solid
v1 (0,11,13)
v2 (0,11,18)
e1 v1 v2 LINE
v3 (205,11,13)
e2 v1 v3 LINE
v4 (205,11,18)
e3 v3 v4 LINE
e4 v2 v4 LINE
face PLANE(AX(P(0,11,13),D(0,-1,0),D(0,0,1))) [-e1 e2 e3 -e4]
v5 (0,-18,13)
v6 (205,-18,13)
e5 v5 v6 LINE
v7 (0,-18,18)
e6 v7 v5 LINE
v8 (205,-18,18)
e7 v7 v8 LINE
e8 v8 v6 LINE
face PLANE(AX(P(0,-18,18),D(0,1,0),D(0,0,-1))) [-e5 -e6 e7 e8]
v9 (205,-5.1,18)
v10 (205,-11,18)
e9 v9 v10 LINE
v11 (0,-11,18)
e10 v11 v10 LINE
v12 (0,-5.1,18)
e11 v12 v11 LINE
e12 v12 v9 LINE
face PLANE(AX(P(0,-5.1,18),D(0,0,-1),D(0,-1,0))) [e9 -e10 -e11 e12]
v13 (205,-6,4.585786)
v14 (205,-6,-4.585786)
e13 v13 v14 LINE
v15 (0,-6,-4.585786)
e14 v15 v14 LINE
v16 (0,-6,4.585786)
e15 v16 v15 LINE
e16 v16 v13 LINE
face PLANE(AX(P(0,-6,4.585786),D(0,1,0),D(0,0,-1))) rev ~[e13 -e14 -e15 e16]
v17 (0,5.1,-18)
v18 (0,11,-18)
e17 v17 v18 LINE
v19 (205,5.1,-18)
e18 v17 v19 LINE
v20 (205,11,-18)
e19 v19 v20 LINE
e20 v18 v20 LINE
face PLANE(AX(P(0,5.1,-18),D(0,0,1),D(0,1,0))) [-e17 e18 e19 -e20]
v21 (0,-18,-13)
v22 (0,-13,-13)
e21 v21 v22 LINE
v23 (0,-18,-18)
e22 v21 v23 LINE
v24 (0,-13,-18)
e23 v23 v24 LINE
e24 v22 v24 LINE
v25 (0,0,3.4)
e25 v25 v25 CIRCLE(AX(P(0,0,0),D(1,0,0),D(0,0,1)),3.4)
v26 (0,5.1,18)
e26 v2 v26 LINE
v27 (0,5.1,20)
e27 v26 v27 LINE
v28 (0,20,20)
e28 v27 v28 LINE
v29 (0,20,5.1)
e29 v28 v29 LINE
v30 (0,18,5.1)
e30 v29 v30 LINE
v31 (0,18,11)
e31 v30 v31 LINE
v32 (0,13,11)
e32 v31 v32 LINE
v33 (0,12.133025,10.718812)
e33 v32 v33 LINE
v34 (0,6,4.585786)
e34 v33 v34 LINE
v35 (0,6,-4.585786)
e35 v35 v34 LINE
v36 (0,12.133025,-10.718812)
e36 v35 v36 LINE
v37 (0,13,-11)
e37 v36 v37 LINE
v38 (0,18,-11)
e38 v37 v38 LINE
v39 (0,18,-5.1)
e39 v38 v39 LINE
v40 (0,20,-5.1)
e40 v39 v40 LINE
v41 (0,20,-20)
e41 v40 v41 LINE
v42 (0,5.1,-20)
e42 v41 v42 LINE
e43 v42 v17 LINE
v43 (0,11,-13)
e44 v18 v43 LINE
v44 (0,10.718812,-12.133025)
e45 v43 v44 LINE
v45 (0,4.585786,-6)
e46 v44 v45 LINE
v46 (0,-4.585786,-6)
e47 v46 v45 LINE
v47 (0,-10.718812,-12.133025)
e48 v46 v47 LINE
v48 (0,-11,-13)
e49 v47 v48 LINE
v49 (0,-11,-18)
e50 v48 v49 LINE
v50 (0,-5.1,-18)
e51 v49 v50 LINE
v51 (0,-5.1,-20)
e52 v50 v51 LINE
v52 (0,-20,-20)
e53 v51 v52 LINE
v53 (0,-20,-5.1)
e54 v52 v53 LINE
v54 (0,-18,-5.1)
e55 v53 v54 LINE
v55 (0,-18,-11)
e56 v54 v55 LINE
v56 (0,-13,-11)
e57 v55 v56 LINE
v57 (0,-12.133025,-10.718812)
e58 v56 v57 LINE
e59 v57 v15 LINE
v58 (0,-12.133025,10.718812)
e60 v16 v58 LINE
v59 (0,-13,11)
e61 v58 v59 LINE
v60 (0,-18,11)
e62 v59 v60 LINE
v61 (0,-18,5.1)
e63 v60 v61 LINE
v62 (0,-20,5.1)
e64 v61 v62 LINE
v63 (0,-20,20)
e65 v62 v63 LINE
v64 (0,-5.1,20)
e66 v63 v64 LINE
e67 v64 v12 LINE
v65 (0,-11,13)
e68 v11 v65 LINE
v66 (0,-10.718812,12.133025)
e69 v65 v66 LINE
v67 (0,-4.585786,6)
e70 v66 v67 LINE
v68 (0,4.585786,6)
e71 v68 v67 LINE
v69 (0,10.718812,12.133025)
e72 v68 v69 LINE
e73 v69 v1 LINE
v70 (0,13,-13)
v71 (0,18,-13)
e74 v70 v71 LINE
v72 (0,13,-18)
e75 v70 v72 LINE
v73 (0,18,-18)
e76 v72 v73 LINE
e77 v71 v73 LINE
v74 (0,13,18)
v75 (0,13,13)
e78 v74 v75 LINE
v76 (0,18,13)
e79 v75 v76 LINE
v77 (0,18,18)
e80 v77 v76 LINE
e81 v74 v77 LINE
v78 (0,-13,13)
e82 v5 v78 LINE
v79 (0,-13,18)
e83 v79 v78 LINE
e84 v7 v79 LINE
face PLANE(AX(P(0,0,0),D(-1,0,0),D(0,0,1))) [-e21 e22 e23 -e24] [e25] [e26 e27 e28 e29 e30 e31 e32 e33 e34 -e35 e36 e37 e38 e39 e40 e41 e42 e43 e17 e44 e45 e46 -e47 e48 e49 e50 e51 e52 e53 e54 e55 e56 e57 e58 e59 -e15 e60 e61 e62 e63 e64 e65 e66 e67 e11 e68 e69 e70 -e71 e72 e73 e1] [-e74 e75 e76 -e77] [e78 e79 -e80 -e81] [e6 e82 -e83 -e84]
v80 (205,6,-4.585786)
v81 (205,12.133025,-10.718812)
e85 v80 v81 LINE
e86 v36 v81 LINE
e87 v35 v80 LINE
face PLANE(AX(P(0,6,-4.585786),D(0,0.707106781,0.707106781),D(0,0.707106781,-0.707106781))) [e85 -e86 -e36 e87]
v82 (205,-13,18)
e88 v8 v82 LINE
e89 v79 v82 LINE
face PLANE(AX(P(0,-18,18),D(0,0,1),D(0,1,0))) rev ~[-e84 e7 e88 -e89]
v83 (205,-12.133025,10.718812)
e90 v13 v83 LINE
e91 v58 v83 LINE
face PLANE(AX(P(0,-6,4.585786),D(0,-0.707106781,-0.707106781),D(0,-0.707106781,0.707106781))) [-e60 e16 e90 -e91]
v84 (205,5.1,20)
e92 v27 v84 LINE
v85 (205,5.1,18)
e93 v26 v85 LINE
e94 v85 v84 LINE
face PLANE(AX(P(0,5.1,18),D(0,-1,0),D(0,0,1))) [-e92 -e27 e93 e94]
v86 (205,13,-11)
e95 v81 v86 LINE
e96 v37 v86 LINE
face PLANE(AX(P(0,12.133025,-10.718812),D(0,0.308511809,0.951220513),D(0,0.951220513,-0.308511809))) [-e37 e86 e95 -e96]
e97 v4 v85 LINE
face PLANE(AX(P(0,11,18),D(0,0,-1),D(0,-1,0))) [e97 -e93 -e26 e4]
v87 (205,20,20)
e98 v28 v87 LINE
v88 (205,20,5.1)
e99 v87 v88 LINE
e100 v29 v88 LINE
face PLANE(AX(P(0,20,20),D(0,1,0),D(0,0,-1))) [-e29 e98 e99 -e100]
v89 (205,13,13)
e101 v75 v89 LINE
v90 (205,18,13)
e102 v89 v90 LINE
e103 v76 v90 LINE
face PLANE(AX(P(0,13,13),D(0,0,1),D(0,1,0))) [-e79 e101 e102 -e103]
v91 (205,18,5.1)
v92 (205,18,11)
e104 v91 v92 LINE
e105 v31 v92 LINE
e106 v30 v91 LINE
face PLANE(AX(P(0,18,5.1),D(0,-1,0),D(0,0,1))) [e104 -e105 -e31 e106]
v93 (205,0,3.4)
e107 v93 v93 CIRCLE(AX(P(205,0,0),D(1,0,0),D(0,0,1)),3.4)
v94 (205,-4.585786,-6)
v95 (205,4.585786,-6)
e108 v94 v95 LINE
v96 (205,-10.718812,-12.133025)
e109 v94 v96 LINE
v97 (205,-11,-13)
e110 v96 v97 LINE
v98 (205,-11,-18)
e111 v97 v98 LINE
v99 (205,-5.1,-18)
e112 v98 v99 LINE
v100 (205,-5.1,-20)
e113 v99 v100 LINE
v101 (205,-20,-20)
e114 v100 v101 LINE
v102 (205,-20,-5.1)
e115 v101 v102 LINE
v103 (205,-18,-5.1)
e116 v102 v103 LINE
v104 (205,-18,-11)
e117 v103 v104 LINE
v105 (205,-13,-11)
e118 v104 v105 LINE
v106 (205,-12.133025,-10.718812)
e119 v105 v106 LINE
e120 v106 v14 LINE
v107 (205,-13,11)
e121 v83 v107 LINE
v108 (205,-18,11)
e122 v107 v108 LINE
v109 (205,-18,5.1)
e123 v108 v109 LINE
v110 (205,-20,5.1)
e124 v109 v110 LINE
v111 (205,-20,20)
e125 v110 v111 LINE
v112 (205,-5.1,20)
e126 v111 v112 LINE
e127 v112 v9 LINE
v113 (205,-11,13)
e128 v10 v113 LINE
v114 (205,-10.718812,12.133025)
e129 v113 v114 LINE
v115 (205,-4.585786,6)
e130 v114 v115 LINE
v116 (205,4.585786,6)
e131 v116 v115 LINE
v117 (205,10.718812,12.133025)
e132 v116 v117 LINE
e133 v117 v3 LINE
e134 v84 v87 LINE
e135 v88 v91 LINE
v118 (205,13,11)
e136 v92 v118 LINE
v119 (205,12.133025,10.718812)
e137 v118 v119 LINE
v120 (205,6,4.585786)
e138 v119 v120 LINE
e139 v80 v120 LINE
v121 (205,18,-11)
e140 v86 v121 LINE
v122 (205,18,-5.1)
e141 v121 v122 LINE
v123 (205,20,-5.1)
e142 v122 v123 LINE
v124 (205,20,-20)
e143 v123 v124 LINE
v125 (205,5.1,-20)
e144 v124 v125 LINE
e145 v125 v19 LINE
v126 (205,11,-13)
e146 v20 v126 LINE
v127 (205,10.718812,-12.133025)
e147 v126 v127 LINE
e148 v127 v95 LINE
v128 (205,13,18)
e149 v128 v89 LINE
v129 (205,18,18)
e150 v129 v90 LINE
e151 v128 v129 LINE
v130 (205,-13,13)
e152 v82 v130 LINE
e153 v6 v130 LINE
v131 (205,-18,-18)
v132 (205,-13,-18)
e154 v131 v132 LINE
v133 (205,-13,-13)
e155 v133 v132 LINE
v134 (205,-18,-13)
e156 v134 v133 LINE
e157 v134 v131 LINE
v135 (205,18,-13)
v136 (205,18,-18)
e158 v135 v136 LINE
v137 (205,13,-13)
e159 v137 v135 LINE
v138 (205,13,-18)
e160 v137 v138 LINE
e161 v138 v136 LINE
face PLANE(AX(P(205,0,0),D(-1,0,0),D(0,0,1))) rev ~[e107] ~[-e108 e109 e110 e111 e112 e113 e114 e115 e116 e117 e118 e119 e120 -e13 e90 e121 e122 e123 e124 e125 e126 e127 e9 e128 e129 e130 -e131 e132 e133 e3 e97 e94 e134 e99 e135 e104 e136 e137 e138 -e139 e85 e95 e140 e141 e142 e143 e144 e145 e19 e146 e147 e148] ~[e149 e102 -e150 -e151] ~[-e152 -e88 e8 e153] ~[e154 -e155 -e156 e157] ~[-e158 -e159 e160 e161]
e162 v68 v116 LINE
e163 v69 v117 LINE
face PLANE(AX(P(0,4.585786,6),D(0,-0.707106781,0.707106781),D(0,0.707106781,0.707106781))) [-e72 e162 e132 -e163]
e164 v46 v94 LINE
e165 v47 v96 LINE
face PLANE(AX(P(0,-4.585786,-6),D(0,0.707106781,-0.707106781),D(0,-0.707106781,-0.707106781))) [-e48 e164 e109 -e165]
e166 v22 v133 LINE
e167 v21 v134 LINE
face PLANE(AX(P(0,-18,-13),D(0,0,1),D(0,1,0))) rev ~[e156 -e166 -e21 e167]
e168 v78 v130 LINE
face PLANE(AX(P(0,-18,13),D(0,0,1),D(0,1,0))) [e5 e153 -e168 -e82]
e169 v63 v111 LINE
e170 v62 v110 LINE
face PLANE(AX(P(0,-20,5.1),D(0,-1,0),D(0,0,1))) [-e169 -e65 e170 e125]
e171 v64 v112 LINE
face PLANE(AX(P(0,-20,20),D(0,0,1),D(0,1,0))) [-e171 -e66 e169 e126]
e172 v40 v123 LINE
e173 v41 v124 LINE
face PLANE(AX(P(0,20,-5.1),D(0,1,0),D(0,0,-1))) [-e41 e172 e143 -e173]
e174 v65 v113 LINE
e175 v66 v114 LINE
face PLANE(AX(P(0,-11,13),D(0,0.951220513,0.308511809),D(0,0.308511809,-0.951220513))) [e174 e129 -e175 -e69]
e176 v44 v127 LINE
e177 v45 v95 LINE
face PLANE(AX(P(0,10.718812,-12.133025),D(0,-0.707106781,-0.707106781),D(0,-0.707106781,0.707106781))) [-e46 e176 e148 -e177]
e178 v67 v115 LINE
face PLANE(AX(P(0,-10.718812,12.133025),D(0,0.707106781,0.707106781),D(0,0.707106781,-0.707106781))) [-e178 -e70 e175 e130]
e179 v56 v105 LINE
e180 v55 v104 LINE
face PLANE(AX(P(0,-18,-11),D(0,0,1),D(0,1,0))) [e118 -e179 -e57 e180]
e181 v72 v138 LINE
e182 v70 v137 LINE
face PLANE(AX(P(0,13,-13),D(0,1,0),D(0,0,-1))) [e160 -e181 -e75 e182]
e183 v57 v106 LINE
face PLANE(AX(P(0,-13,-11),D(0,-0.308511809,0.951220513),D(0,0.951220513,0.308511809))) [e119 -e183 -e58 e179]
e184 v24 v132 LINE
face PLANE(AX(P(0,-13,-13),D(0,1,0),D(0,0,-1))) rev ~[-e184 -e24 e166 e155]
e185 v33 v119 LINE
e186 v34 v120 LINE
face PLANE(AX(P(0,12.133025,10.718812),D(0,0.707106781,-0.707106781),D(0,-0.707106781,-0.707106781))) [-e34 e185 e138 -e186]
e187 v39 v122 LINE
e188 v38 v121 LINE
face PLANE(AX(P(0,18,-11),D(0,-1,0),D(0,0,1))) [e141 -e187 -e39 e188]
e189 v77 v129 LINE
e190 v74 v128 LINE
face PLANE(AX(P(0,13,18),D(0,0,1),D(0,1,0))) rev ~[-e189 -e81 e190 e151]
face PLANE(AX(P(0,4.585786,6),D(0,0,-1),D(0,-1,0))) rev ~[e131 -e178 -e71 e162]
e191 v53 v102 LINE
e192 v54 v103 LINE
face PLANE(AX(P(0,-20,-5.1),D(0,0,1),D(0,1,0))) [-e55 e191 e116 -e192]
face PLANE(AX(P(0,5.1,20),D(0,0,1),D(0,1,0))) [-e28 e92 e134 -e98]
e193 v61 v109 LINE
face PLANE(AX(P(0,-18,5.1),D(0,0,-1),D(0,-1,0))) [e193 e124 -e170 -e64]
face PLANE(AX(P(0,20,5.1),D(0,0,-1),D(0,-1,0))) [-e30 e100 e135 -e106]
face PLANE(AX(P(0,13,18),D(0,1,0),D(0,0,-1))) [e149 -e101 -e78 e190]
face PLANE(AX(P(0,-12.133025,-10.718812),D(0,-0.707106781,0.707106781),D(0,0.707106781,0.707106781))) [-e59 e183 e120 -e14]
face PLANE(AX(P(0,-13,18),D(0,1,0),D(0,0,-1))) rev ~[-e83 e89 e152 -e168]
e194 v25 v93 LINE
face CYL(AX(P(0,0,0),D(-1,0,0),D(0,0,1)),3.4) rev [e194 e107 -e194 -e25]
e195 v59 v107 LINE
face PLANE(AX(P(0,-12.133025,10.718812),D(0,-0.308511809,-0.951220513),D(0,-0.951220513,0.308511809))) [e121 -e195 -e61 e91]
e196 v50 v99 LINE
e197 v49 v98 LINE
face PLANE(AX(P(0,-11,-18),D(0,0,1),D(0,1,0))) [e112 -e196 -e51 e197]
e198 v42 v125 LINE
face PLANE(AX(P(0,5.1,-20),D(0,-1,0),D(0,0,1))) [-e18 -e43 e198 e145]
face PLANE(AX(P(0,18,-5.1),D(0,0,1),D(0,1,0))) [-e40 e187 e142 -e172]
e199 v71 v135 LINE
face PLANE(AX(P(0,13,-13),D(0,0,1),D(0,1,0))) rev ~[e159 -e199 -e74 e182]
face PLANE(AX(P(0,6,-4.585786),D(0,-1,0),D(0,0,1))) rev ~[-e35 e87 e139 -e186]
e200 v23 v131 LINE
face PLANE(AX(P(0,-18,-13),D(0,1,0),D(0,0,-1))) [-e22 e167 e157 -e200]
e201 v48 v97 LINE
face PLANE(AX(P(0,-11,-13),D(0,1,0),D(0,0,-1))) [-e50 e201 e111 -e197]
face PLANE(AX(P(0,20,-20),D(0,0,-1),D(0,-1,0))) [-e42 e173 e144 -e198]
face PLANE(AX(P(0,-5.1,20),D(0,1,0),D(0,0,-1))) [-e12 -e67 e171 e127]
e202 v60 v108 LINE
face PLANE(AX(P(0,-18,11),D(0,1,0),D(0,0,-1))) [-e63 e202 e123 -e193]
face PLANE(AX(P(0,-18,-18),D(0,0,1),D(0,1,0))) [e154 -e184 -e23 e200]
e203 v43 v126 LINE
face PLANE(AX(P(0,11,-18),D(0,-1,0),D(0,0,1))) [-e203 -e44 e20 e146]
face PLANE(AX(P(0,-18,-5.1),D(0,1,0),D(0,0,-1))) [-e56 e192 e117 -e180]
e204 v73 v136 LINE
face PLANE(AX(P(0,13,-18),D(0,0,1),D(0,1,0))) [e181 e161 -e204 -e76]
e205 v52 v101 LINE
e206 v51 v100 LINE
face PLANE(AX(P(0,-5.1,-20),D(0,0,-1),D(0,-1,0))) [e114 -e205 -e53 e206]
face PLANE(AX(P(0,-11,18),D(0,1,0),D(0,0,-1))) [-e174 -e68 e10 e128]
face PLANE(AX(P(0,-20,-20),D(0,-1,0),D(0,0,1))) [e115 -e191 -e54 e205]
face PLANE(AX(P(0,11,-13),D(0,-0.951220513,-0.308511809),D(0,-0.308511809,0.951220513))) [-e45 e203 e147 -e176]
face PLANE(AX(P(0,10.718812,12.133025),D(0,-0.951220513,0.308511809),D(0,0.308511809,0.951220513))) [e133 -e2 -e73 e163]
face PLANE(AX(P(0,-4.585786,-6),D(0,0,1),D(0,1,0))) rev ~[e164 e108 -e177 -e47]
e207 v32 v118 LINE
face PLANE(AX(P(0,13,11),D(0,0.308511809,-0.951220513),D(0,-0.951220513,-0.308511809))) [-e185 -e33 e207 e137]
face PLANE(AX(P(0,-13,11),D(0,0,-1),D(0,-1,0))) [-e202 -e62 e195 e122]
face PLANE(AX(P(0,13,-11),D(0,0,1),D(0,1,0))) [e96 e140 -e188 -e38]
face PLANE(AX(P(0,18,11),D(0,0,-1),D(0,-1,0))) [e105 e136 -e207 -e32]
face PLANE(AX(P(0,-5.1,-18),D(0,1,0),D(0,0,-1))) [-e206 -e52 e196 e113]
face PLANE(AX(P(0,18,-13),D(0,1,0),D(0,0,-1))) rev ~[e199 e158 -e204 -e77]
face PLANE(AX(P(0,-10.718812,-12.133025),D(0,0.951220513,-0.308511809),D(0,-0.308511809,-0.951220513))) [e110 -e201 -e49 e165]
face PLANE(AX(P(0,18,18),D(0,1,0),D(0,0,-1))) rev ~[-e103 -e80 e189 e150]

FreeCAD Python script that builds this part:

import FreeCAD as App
import Part
import Sketcher

V = App.Vector


def add_polygon(sketch, points):
    """Adds a closed chain of lines whose ends are joined by coincident constraints."""
    first, n = sketch.GeometryCount, len(points)
    for a, b in zip(points, points[1:] + points[:1]):
        sketch.addGeometry(Part.LineSegment(App.Vector(*a, 0), App.Vector(*b, 0)), False)
    for i in range(n):
        sketch.addConstraint(Sketcher.Constraint("Coincident", first + i, 2, first + (i + 1) % n, 1))

doc = App.newDocument("Part")
body = doc.addObject("PartDesign::Body", "Body")

# Sketch on YZ plane
sketch1 = body.newObject("Sketcher::SketchObject", "Sketch")
sketch1.AttachmentSupport = (doc.getObject("YZ_Plane"), [""])
sketch1.MapMode = "FlatFace"
add_polygon(sketch1, [(6, -4.6), (6, 4.6), (12.1, 10.7), (13, 11), (18, 11), (18, 5.1), (20, 5.1), (20, 20), (5.1, 20), (5.1, 18), (11, 18), (11, 13), (10.7, 12.1), (4.6, 6), (-4.6, 6), (-10.7, 12.1), (-11, 13), (-11, 18), (-5.1, 18), (-5.1, 20), (-20, 20), (-20, 5.1), (-18, 5.1), (-18, 11), (-13, 11), (-12.1, 10.7), (-6, 4.6), (-6, -4.6), (-12.1, -10.7), (-13, -11), (-18, -11), (-18, -5.1), (-20, -5.1), (-20, -20), (-5.1, -20), (-5.1, -18), (-11, -18), (-11, -13), (-10.7, -12.1), (-4.6, -6), (4.6, -6), (10.7, -12.1), (11, -13), (11, -18), (5.1, -18), (5.1, -20), (20, -20), (20, -5.1), (18, -5.1), (18, -11), (13, -11), (12.1, -10.7)])  # lines 0-51
add_polygon(sketch1, [(-18, -13), (-13, -13), (-13, -18), (-18, -18)])  # lines 52-55
add_polygon(sketch1, [(-18, 18), (-13, 18), (-13, 13), (-18, 13)])  # lines 56-59
add_polygon(sketch1, [(13, -13), (18, -13), (18, -18), (13, -18)])  # lines 60-63
sketch1.addGeometry(Part.Circle(V(0, 0, 0), V(0, 0, 1), 3.4), False)  # 64
add_polygon(sketch1, [(13, 18), (18, 18), (18, 13), (13, 13)])  # lines 65-68
sketch1.addConstraint([
    Sketcher.Constraint("Vertical", 0),
    Sketcher.Constraint("Horizontal", 3),
    Sketcher.Constraint("Vertical", 4),
    Sketcher.Constraint("Horizontal", 5),
    Sketcher.Constraint("Vertical", 6),
    Sketcher.Constraint("Horizontal", 7),
    Sketcher.Constraint("Vertical", 8),
    Sketcher.Constraint("Horizontal", 9),
    Sketcher.Constraint("Vertical", 10),
    Sketcher.Constraint("Horizontal", 13),
    Sketcher.Constraint("Vertical", 16),
    Sketcher.Constraint("Horizontal", 17),
    Sketcher.Constraint("Vertical", 18),
    Sketcher.Constraint("Horizontal", 19),
    Sketcher.Constraint("Vertical", 20),
    Sketcher.Constraint("Horizontal", 21),
    Sketcher.Constraint("Vertical", 22),
    Sketcher.Constraint("Horizontal", 23),
    Sketcher.Constraint("Vertical", 26),
    Sketcher.Constraint("Horizontal", 29),
    Sketcher.Constraint("Vertical", 30),
    Sketcher.Constraint("Horizontal", 31),
    Sketcher.Constraint("Vertical", 32),
    Sketcher.Constraint("Horizontal", 33),
    Sketcher.Constraint("Vertical", 34),
    Sketcher.Constraint("Horizontal", 35),
    Sketcher.Constraint("Vertical", 36),
    Sketcher.Constraint("Horizontal", 39),
    Sketcher.Constraint("Vertical", 42),
    Sketcher.Constraint("Horizontal", 43),
    Sketcher.Constraint("Vertical", 44),
    Sketcher.Constraint("Horizontal", 45),
    Sketcher.Constraint("Vertical", 46),
    Sketcher.Constraint("Horizontal", 47),
    Sketcher.Constraint("Vertical", 48),
    Sketcher.Constraint("Horizontal", 49),
    Sketcher.Constraint("Horizontal", 52),
    Sketcher.Constraint("Vertical", 53),
    Sketcher.Constraint("Horizontal", 54),
    Sketcher.Constraint("Vertical", 55),
    Sketcher.Constraint("Horizontal", 56),
    Sketcher.Constraint("Vertical", 57),
    Sketcher.Constraint("Horizontal", 58),
    Sketcher.Constraint("Vertical", 59),
    Sketcher.Constraint("Horizontal", 60),
    Sketcher.Constraint("Vertical", 61),
    Sketcher.Constraint("Horizontal", 62),
    Sketcher.Constraint("Vertical", 63),
    Sketcher.Constraint("Horizontal", 65),
    Sketcher.Constraint("Vertical", 66),
    Sketcher.Constraint("Horizontal", 67),
    Sketcher.Constraint("Vertical", 68),
    Sketcher.Constraint("Coincident", 64, 3, -1, 1),
    Sketcher.Constraint("Symmetric", 0, 2, 26, 2, -1, 1),
    Sketcher.Constraint("Symmetric", 1, 2, 27, 2, -1, 1),
    Sketcher.Constraint("Symmetric", 2, 2, 28, 2, -1, 1),
    Sketcher.Constraint("Symmetric", 4, 2, 30, 2, -1, 1),
    Sketcher.Constraint("Symmetric", 6, 2, 32, 2, -1, 1),
    Sketcher.Constraint("Symmetric", 8, 2, 34, 2, -1, 1),
    Sketcher.Constraint("Symmetric", 10, 2, 36, 2, -1, 1),
    Sketcher.Constraint("Symmetric", 11, 2, 37, 2, -1, 1),
    Sketcher.Constraint("Symmetric", 12, 2, 38, 2, -1, 1),
    Sketcher.Constraint("Symmetric", 14, 2, 40, 2, -1, 1),
    Sketcher.Constraint("Symmetric", 15, 2, 41, 2, -1, 1),
    Sketcher.Constraint("Symmetric", 17, 2, 43, 2, -1, 1),
    Sketcher.Constraint("Symmetric", 19, 2, 45, 2, -1, 1),
    Sketcher.Constraint("Symmetric", 21, 2, 47, 2, -1, 1),
    Sketcher.Constraint("Symmetric", 23, 2, 49, 2, -1, 1),
    Sketcher.Constraint("Symmetric", 24, 2, 50, 2, -1, 1),
    Sketcher.Constraint("Symmetric", 58, 2, 60, 2, -1, 1),
    Sketcher.Constraint("Symmetric", 56, 2, 62, 2, -1, 1),
    Sketcher.Constraint("Symmetric", 54, 2, 65, 2, -1, 1),
    Sketcher.Constraint("Symmetric", 52, 2, 67, 2, -1, 1),
    Sketcher.Constraint("Symmetric", 11, 2, 14, 2, -2),
    Sketcher.Constraint("Symmetric", 10, 2, 15, 2, -2),
    Sketcher.Constraint("Symmetric", 8, 2, 17, 2, -2),
    Sketcher.Constraint("Symmetric", 6, 2, 19, 2, -2),
    Sketcher.Constraint("Symmetric", 4, 2, 21, 2, -2),
    Sketcher.Constraint("Symmetric", 2, 2, 23, 2, -2),
    Sketcher.Constraint("Symmetric", 1, 2, 24, 2, -2),
    Sketcher.Constraint("Symmetric", 55, 2, 60, 2, -2),
    Sketcher.Constraint("Symmetric", 53, 2, 62, 2, -2),
    Sketcher.Constraint("Parallel", 1, 12),
    Sketcher.Constraint("Perpendicular", 12, 14),
    Sketcher.Constraint("Perpendicular", 2, 15),
    Sketcher.Constraint("Parallel", 14, 25),
    Sketcher.Constraint("Perpendicular", 38, 40),
    Sketcher.Constraint("Parallel", 40, 51),
    Sketcher.Constraint("Horizontal", 0, 2, 25, 2),
    Sketcher.Constraint("Horizontal", 41, 2, 52, 2),
    Sketcher.Constraint("Horizontal", 43, 2, 53, 2),
    Sketcher.Constraint("Vertical", 28, 2, 52, 2),
    Sketcher.Constraint("Vertical", 30, 2, 54, 2),
    Sketcher.Constraint("Equal", 39, 0),
    Sketcher.Constraint("Equal", 43, 4),
    Sketcher.Constraint("Equal", 45, 6),
    Sketcher.Constraint("Equal", 47, 8),
    Sketcher.Constraint("Equal", 67, 10),
    Sketcher.Constraint("Equal", 2, 11),
    Sketcher.Constraint("Equal", 1, 12),
    Sketcher.Constraint("Diameter", 64, 6.8),
    Sketcher.Constraint("DistanceX", 3, 1, 3, 2, 5.0),
    Sketcher.Constraint("DistanceX", 5, 1, 5, 2, 2.0),
    Sketcher.Constraint("DistanceX", 7, 2, 7, 1, 14.9),
    Sketcher.Constraint("DistanceX", 9, 1, 9, 2, 5.9),
    Sketcher.Constraint("DistanceX", -1, 1, 0, 2, 6.0),
    Sketcher.Constraint("DistanceX", -1, 1, 2, 2, 13.0),
    Sketcher.Constraint("DistanceX", 13, 2, 13, 1, 9.171573),
    Sketcher.Constraint("DistanceY", -1, 1, 1, 2, 10.718812),
])
pad1 = body.newObject("PartDesign::Pad", "Pad")
pad1.Profile = sketch1
pad1.Length = 205

doc.recompute()
